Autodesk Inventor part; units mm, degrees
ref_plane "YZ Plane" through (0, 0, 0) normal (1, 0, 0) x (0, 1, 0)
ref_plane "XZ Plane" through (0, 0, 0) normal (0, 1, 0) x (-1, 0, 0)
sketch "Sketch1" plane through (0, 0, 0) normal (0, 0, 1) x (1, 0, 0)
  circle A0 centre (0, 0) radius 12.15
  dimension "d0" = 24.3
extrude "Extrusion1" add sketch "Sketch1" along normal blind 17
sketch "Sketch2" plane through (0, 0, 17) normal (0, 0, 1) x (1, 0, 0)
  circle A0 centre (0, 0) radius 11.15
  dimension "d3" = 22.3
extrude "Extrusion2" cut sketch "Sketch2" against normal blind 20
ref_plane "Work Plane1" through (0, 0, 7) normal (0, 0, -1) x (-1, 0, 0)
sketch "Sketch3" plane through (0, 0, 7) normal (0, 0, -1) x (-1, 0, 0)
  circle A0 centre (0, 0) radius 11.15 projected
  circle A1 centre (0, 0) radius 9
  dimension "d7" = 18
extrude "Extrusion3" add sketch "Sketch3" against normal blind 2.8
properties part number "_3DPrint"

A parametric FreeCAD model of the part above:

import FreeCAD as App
import Part
import Sketcher

V = App.Vector

doc = App.newDocument("Part")
body = doc.addObject("PartDesign::Body", "Body")

# Sketch on XY plane
sketch1 = body.newObject("Sketcher::SketchObject", "Sketch")
sketch1.AttachmentSupport = (doc.getObject("XY_Plane"), [""])
sketch1.MapMode = "FlatFace"
sketch1.addGeometry(Part.Circle(V(0, 0, 0), V(0, 0, 1), 12.15), False)
sketch1.addConstraint([
    Sketcher.Constraint("Coincident", 0, 3, -1, 1),
    Sketcher.Constraint("Diameter", 0, 24.3),
])
pad1 = body.newObject("PartDesign::Pad", "Pad")
pad1.Profile = sketch1
pad1.Length = 17

# Sketch on XY plane
sketch2 = body.newObject("Sketcher::SketchObject", "Sketch001")
sketch2.AttachmentSupport = (doc.getObject("XY_Plane"), [""])
sketch2.MapMode = "FlatFace"
sketch2.AttachmentOffset = App.Placement(V(0, 0, 17), App.Rotation())
sketch2.addGeometry(Part.Circle(V(0, 0, 0), V(0, 0, 1), 11.15), False)
sketch2.addConstraint([
    Sketcher.Constraint("Coincident", 0, 3, -1, 1),
    Sketcher.Constraint("Diameter", 0, 22.3),
])
pocket1 = body.newObject("PartDesign::Pocket", "Pocket")
pocket1.Profile = sketch2
pocket1.Length = 20

# Sketch on XY plane
sketch3 = body.newObject("Sketcher::SketchObject", "Sketch002")
sketch3.AttachmentSupport = (doc.getObject("XY_Plane"), [""])
sketch3.MapMode = "FlatFace"
sketch3.AttachmentOffset = App.Placement(V(0, 0, 7), App.Rotation())
sketch3.addGeometry([
    Part.Circle(V(0, 0, 0), V(0, 0, 1), 11.15),
    Part.Circle(V(0, 0, 0), V(0, 0, 1), 9),
], False)
sketch3.addConstraint([
    Sketcher.Constraint("Coincident", 0, 3, -1, 1),
    Sketcher.Constraint("Coincident", 1, 3, -1, 1),
    Sketcher.Constraint("Diameter", 1, 18.0),
    Sketcher.Constraint("Diameter", 0, 22.3),
])
pad2 = body.newObject("PartDesign::Pad", "Pad001")
pad2.Profile = sketch3
pad2.Length = 2.8

doc.recompute()
